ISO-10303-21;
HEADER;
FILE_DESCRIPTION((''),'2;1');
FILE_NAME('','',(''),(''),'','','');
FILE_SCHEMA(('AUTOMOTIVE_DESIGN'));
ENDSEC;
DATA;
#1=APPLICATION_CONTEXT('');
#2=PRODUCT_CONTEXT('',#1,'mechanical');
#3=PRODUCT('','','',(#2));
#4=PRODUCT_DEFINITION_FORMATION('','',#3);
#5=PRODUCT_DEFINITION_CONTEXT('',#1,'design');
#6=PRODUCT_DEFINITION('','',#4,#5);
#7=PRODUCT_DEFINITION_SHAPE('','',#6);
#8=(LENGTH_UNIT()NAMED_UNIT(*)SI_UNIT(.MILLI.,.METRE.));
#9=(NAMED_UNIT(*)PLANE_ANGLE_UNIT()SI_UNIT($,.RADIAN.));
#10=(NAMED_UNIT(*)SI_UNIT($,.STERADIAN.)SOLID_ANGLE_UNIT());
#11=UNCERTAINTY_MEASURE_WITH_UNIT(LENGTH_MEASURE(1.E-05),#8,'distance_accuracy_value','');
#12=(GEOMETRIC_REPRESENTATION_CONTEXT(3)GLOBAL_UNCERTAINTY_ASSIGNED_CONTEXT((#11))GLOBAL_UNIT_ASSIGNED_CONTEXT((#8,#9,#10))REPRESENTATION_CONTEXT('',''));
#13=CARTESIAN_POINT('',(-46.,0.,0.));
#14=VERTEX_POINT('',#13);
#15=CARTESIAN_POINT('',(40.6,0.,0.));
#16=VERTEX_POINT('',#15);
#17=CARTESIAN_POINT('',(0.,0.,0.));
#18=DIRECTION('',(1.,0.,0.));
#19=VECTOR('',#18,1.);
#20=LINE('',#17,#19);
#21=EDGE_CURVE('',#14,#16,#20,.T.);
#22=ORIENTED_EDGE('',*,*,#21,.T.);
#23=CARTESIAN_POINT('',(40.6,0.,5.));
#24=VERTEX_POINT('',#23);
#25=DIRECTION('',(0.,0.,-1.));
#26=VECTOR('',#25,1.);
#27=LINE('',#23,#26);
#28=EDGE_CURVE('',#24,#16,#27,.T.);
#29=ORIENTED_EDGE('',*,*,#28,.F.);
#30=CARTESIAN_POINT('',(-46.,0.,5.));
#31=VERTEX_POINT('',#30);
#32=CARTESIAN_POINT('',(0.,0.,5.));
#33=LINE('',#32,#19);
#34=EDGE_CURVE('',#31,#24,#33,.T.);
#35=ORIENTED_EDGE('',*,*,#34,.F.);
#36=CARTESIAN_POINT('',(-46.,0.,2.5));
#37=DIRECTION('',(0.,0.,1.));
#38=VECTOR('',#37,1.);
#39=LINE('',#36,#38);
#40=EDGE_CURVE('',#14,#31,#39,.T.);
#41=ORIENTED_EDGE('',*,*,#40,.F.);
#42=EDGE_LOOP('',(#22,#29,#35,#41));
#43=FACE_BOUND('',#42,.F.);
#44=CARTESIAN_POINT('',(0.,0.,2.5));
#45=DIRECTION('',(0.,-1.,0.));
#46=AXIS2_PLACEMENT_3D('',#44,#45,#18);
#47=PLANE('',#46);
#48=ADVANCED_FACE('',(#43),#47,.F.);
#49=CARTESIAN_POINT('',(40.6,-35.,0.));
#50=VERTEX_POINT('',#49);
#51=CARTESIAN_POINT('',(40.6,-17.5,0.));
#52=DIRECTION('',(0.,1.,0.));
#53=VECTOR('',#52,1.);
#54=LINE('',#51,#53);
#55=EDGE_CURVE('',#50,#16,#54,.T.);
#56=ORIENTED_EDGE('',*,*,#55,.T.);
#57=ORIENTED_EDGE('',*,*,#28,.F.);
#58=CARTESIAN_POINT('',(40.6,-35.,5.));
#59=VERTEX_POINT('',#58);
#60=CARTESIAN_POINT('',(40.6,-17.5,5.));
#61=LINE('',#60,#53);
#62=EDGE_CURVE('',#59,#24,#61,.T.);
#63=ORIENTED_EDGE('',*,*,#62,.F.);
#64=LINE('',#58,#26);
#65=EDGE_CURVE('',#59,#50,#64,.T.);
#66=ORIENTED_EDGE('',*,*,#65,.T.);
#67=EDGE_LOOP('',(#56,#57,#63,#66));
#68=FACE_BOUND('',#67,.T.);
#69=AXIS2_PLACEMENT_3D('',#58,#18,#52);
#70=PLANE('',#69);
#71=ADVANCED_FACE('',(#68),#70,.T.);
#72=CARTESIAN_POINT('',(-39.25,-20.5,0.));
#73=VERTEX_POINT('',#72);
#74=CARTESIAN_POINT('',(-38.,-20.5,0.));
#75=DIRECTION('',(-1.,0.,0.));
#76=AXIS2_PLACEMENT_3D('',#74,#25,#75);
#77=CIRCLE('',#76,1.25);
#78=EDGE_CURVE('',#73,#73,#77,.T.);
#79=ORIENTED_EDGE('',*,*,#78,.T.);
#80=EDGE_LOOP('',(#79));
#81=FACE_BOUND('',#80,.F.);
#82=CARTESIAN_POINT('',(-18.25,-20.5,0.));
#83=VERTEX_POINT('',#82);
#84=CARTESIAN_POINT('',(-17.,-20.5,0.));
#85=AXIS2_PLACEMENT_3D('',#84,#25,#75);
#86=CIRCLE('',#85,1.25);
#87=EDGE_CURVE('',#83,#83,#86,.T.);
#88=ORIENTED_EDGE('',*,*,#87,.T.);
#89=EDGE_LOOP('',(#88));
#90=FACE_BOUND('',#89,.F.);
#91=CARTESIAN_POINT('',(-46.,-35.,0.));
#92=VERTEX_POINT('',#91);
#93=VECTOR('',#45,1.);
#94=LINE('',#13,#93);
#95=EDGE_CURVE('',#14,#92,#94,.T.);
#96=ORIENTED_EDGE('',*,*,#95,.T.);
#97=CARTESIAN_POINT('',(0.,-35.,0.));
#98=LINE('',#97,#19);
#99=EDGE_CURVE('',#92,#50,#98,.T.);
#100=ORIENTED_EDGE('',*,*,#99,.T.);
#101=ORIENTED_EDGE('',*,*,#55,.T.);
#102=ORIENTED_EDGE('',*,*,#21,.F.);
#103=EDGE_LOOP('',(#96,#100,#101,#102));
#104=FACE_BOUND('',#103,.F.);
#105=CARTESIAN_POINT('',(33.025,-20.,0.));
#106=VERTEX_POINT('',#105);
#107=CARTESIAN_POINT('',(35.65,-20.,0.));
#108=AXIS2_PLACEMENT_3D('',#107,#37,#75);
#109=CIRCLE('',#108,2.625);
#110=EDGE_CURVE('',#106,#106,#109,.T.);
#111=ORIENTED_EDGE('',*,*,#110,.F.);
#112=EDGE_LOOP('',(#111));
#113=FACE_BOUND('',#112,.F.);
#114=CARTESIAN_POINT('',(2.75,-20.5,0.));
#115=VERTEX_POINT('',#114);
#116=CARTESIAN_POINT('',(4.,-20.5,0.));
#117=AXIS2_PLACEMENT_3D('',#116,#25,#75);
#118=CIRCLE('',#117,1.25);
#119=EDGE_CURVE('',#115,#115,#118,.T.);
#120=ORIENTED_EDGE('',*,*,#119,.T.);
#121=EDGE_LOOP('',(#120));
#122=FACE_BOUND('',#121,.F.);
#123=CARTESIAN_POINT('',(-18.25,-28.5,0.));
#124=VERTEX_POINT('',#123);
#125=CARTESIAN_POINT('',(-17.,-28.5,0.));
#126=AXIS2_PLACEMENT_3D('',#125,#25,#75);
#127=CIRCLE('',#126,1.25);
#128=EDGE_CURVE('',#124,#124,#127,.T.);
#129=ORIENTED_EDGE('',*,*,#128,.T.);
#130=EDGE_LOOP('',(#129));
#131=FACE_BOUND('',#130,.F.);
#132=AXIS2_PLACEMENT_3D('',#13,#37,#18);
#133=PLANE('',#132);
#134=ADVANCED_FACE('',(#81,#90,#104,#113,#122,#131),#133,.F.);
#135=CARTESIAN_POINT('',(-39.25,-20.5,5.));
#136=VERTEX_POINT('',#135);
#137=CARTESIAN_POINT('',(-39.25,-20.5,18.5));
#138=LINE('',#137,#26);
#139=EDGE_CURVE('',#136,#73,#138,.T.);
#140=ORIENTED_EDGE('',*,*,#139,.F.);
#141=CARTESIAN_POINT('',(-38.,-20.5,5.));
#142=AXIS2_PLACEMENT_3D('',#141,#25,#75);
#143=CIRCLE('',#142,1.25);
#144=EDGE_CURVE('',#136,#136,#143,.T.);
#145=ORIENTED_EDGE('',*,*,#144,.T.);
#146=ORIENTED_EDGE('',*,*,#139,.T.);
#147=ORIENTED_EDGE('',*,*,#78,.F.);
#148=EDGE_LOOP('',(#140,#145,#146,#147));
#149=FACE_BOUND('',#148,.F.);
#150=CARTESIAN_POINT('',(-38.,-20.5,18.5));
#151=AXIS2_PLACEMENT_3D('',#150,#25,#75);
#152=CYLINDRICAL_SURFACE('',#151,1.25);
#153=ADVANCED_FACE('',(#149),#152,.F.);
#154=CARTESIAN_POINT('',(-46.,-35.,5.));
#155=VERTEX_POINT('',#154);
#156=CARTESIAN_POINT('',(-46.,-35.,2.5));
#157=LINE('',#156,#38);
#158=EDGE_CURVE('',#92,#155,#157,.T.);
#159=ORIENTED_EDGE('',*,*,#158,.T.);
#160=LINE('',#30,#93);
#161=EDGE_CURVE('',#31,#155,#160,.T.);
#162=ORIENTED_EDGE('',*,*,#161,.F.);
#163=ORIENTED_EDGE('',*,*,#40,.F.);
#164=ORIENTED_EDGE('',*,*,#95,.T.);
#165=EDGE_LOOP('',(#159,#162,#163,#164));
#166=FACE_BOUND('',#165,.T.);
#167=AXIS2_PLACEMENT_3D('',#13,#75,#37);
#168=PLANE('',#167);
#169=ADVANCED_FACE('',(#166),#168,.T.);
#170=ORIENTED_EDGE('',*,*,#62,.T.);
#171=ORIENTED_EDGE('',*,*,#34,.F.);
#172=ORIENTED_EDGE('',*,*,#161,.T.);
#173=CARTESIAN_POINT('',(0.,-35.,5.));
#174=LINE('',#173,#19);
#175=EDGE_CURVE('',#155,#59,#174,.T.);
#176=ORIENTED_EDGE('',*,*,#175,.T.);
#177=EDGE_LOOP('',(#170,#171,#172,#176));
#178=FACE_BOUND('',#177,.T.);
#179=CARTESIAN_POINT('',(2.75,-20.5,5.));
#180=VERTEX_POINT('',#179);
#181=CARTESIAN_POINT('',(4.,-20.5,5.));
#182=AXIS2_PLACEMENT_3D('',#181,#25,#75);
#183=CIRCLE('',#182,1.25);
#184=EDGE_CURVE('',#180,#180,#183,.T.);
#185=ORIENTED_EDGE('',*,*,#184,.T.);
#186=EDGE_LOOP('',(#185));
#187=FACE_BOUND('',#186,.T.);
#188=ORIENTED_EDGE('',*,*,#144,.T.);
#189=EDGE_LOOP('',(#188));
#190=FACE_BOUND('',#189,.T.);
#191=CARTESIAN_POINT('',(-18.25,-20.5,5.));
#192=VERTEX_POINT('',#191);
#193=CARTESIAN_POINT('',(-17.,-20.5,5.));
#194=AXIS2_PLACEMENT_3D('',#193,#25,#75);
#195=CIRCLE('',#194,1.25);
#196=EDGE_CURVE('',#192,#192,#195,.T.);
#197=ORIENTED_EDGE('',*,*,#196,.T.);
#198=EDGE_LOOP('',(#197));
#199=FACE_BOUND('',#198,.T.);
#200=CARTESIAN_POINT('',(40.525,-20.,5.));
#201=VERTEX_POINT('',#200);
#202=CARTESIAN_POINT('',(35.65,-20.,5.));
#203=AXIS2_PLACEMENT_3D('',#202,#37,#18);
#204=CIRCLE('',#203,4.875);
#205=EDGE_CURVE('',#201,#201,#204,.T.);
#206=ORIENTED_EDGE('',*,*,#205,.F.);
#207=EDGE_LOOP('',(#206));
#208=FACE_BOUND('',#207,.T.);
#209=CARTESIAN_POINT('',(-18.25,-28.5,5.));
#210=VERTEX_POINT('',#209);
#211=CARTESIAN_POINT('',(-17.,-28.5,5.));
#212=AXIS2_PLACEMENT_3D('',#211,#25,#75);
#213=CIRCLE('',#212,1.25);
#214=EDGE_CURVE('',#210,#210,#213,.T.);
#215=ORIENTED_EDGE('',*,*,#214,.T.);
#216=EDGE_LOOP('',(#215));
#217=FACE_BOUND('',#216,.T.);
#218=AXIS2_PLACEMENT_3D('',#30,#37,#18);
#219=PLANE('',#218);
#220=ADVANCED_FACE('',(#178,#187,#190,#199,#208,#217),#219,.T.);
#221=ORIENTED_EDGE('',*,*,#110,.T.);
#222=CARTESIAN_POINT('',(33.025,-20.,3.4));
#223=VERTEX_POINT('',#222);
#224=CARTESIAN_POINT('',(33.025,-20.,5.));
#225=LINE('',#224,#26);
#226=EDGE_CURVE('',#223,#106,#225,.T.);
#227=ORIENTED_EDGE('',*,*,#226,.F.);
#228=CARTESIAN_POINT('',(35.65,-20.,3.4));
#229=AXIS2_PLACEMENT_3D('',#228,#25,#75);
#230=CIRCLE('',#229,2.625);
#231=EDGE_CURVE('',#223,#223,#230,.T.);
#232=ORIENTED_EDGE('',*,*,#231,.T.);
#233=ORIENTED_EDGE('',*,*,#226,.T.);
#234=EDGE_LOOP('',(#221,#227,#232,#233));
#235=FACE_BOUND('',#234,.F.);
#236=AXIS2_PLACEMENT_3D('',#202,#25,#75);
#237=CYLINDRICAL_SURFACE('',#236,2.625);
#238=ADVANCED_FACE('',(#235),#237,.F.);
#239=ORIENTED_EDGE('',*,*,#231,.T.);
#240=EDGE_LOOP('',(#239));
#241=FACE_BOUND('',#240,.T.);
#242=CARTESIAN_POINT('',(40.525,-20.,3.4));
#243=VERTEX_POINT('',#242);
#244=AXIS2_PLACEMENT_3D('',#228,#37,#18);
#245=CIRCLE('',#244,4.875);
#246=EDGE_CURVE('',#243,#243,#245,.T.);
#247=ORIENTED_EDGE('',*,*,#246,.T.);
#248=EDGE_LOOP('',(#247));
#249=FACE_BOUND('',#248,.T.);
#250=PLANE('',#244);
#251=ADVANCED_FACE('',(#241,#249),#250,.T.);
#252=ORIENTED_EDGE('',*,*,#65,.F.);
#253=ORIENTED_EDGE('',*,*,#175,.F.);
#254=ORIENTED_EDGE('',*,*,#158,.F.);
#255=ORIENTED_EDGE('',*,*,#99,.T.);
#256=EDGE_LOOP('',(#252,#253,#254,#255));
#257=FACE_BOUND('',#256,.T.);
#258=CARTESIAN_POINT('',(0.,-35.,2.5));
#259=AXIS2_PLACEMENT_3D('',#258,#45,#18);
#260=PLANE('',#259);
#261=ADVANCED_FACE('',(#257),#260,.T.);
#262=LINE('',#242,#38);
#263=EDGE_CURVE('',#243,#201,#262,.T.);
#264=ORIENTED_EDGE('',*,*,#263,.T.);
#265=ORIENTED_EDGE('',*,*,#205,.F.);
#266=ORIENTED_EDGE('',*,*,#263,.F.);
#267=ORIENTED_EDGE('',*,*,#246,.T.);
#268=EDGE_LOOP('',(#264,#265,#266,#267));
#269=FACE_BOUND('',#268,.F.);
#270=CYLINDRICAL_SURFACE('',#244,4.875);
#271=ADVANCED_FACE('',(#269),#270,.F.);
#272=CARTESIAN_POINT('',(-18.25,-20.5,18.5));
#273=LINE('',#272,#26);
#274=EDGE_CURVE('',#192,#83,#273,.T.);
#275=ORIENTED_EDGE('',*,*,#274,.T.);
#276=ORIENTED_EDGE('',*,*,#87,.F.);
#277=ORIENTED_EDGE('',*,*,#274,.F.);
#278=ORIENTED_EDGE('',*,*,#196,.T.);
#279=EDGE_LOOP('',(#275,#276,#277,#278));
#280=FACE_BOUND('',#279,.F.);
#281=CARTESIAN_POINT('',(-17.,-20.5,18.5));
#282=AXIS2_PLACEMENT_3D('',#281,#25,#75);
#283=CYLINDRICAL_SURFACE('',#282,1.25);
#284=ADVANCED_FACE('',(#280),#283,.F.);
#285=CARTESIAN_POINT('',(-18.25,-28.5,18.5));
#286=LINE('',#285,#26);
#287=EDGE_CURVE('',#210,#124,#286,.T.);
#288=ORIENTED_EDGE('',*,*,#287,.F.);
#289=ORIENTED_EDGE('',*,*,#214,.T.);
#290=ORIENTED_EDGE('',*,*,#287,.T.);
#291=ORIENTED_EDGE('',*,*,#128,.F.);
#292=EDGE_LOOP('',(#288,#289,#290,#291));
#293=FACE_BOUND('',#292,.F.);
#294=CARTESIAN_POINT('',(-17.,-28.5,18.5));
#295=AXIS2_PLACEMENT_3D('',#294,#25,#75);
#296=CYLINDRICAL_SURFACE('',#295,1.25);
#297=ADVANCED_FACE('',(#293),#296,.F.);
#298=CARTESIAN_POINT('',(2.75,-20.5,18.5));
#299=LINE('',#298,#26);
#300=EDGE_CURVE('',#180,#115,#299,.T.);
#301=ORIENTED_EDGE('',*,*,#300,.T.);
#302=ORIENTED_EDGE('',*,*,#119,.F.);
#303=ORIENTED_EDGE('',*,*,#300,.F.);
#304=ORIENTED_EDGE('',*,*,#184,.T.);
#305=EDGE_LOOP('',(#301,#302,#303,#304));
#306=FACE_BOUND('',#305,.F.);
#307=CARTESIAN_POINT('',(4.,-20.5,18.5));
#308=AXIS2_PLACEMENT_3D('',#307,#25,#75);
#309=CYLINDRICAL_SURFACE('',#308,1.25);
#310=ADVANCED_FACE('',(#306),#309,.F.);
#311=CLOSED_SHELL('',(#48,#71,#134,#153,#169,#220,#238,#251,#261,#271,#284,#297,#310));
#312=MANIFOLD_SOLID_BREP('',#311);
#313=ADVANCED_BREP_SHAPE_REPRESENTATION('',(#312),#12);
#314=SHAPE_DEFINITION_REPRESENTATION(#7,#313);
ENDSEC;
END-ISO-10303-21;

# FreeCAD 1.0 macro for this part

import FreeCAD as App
import Part
import Sketcher

doc = App.newDocument("Part")
body = doc.addObject("PartDesign::Body", "Body")

sketch1 = body.newObject("Sketcher::SketchObject", "Sketch")
sketch1.AttachmentSupport = (doc.getObject("XZ_Plane"), [""])
sketch1.MapMode = "FlatFace"
sketch1.addGeometry([
    Part.LineSegment(App.Vector(-46, 5, 0), App.Vector(-46, 0, 0)),
    Part.LineSegment(App.Vector(-46, 0, 0), App.Vector(46, 0, 0)),
    Part.LineSegment(App.Vector(46, 0, 0), App.Vector(46, 5, 0)),
    Part.LineSegment(App.Vector(46, 5, 0), App.Vector(-46, 5, 0)),
], False)
sketch1.addConstraint([
    Sketcher.Constraint("Coincident", 0, 2, 1, 1),
    Sketcher.Constraint("Coincident", 1, 2, 2, 1),
    Sketcher.Constraint("Coincident", 2, 2, 3, 1),
    Sketcher.Constraint("Coincident", 3, 2, 0, 1),
    Sketcher.Constraint("Vertical", 0),
    Sketcher.Constraint("Horizontal", 1),
    Sketcher.Constraint("Vertical", 2),
    Sketcher.Constraint("Horizontal", 3),
    Sketcher.Constraint("Symmetric", 0, 2, 1, 2, -1, 1),
    Sketcher.Constraint("DistanceX", 1, 1, 1, 2, 92.0),
    Sketcher.Constraint("DistanceY", 0, 2, 0, 1, 5.0),
])
pad1 = body.newObject("PartDesign::Pad", "Pad")
pad1.Profile = sketch1
pad1.Length = 35

sketch2 = body.newObject("Sketcher::SketchObject", "Sketch001")
sketch2.AttachmentSupport = (doc.getObject("XY_Plane"), [""])
sketch2.MapMode = "FlatFace"
sketch2.AttachmentOffset = App.Placement(App.Vector(0, 0, 5), App.Rotation())
sketch2.addGeometry(Part.Circle(App.Vector(35.6, -20, 0), App.Vector(0, 0, 1), 2.6), False)
sketch2.addConstraint([
    Sketcher.Constraint("Diameter", 0, 5.25),
    Sketcher.Constraint("DistanceY", 0, 3, -1, 1, 20.0),
    Sketcher.Constraint("DistanceX", -1, 1, 0, 3, 35.65),
])
doc.recompute()
hole = body.newObject("PartDesign::Hole", "Hole")
hole.Profile = sketch2
hole.ThreadType = "None"
hole.Diameter = 5.25
hole.DepthType = "Dimension"
hole.Depth = 5
hole.DrillPoint = "Angled"
hole.DrillPointAngle = 118
hole.HoleCutType = "Counterbore"
hole.HoleCutDiameter = 9.75
hole.HoleCutDepth = 1.6

sketch3 = body.newObject("Sketcher::SketchObject", "Sketch002")
sketch3.AttachmentSupport = (doc.getObject("XY_Plane"), [""])
sketch3.MapMode = "FlatFace"
sketch3.AttachmentOffset = App.Placement(App.Vector(0, 0, 5), App.Rotation())
sketch3.addGeometry([
    Part.Circle(App.Vector(-38, -20.5, 0), App.Vector(0, 0, 1), 1.2),
    Part.Circle(App.Vector(-17, -20.5, 0), App.Vector(0, 0, 1), 1.2),
    Part.Circle(App.Vector(4, -20.5, 0), App.Vector(0, 0, 1), 1.2),
    Part.Circle(App.Vector(-17, -28.5, 0), App.Vector(0, 0, 1), 1.2),
], False)
sketch3.addConstraint([
    Sketcher.Constraint("Equal", 0, 1),
    Sketcher.Constraint("Equal", 1, 2),
    Sketcher.Constraint("Equal", 2, 3),
    Sketcher.Constraint("Horizontal", 0, 3, 1, 3),
    Sketcher.Constraint("Horizontal", 1, 3, 2, 3),
    Sketcher.Constraint("Vertical", 1, 3, 3, 3),
    Sketcher.Constraint("Diameter", 0, 2.5),
    Sketcher.Constraint("DistanceX", 0, 3, -1, 1, 38.0),
    Sketcher.Constraint("DistanceX", 1, 3, -1, 1, 17.0),
    Sketcher.Constraint("DistanceX", -1, 1, 2, 3, 4.0),
    Sketcher.Constraint("DistanceY", 3, 3, 1, 3, 8.0),
    Sketcher.Constraint("DistanceY", 0, 3, -1, 1, 20.5),
])
doc.recompute()
hole2 = body.newObject("PartDesign::Hole", "Hole001")
hole2.Profile = sketch3
hole2.ThreadType = "None"
hole2.Diameter = 2.5
hole2.DepthType = "Dimension"
hole2.Depth = 13.5
hole2.DrillPoint = "Angled"
hole2.DrillPointAngle = 118

sketch4 = body.newObject("Sketcher::SketchObject", "Sketch003")
sketch4.AttachmentSupport = (doc.getObject("XY_Plane"), [""])
sketch4.MapMode = "FlatFace"
sketch4.AttachmentOffset = App.Placement(App.Vector(0, 0, 5), App.Rotation())
sketch4.addGeometry([
    Part.LineSegment(App.Vector(41, 0, 0), App.Vector(41, -35, 0)),
    Part.LineSegment(App.Vector(41, -35, 0), App.Vector(46, -35, 0)),
    Part.LineSegment(App.Vector(46, -35, 0), App.Vector(46, 0, 0)),
    Part.LineSegment(App.Vector(46, 0, 0), App.Vector(41, 0, 0)),
], False)
sketch4.addConstraint([
    Sketcher.Constraint("Coincident", 0, 2, 1, 1),
    Sketcher.Constraint("Coincident", 1, 2, 2, 1),
    Sketcher.Constraint("Coincident", 2, 2, 3, 1),
    Sketcher.Constraint("Coincident", 3, 2, 0, 1),
    Sketcher.Constraint("Vertical", 0),
    Sketcher.Constraint("Horizontal", 1),
    Sketcher.Constraint("Vertical", 2),
    Sketcher.Constraint("Horizontal", 3),
    Sketcher.Constraint("PointOnObject", 2, 2, -1),
    Sketcher.Constraint("DistanceY", 0, 2, 0, 1, 35.0),
    Sketcher.Constraint("DistanceX", 1, 1, 1, 2, 5.4),
    Sketcher.Constraint("DistanceX", -1, 1, 1, 2, 46.0),
])
pocket1 = body.newObject("PartDesign::Pocket", "Pocket")
pocket1.Profile = sketch4
pocket1.Length = 5

doc.recompute()
